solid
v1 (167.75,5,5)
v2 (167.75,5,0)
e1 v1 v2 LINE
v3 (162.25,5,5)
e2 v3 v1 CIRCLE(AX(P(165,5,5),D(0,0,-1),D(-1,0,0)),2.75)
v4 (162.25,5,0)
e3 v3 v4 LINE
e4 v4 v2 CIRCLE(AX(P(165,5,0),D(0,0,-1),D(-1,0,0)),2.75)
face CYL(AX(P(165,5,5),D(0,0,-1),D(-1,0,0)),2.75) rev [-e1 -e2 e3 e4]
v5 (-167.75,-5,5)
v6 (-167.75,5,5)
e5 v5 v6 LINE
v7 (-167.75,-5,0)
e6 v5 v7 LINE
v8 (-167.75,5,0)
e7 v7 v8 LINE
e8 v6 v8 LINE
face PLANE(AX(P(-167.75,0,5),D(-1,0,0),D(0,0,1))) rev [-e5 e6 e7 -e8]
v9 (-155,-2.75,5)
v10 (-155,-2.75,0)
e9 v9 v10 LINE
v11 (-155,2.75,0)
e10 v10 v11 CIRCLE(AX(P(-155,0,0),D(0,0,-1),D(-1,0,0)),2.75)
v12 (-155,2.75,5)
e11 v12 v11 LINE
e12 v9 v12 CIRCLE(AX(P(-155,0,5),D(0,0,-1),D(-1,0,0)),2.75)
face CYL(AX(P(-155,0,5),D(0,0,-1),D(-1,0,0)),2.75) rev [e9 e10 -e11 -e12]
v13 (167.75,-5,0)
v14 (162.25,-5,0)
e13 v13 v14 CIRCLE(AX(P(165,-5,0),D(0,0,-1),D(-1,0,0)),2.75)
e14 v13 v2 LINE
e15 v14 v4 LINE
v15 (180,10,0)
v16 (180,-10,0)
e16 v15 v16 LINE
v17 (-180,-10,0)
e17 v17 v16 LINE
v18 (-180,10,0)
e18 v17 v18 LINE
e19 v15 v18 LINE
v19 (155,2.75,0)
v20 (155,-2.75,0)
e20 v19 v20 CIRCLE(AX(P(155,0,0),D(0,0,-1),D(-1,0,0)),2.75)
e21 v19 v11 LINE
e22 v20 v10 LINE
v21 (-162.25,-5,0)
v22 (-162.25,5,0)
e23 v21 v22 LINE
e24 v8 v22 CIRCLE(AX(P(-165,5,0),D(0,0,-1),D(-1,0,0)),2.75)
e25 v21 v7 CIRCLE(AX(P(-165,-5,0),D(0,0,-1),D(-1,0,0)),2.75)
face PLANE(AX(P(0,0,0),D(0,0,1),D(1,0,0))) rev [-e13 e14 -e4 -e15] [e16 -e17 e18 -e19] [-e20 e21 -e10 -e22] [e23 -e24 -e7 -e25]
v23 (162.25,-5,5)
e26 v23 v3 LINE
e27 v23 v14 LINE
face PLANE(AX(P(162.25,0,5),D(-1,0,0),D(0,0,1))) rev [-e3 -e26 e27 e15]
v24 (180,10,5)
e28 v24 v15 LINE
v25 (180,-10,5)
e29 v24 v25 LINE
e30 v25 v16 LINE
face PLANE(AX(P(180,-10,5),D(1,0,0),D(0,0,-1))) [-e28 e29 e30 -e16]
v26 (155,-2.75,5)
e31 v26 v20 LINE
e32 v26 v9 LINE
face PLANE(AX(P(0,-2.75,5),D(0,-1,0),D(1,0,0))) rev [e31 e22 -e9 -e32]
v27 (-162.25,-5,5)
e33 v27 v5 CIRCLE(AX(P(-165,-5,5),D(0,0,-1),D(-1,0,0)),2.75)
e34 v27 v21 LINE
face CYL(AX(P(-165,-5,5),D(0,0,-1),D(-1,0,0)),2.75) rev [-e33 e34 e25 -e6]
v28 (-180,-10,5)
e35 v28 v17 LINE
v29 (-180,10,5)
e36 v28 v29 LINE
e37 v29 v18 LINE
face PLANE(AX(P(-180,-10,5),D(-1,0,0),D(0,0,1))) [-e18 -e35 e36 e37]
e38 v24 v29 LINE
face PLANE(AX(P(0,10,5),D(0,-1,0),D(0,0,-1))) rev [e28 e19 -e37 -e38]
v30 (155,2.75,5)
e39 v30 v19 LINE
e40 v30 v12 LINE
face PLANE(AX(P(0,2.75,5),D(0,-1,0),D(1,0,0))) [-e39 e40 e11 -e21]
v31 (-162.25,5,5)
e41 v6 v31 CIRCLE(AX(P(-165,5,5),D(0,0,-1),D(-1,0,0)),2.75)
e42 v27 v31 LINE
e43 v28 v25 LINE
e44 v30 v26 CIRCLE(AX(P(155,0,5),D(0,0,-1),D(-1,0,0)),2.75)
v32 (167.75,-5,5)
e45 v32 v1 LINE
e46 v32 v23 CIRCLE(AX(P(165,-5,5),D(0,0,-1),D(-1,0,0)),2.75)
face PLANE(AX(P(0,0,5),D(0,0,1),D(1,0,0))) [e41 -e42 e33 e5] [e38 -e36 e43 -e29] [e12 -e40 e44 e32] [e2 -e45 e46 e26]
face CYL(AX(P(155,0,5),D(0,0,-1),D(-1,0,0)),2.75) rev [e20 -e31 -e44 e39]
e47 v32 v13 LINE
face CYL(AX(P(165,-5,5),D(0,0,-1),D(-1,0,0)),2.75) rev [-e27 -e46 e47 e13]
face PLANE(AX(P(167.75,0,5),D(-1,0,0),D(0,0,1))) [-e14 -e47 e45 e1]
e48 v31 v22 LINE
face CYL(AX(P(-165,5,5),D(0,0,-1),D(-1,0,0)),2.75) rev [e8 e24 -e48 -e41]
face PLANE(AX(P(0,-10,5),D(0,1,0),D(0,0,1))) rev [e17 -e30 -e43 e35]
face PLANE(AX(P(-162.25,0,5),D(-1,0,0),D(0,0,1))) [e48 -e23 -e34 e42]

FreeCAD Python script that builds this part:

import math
import FreeCAD as App
import Part
import Sketcher
from FreeCAD import Vector
Q = App.Units.Quantity


def add_polygon(sketch, points):
    """Adds a closed chain of lines whose ends are joined by coincident constraints."""
    first, n = sketch.GeometryCount, len(points)
    for a, b in zip(points, points[1:] + points[:1]):
        sketch.addGeometry(Part.LineSegment(App.Vector(*a, 0), App.Vector(*b, 0)), False)
    for i in range(n):
        sketch.addConstraint(Sketcher.Constraint("Coincident", first + i, 2, first + (i + 1) % n, 1))

doc = App.newDocument("Part")
params = doc.addObject("Spreadsheet::Sheet", "Params")
for row, (alias, value) in enumerate([
    ("sketch1_width", "350 mm"),
    ("sketch1_height", "20 mm"),
    ("pad1_length", "5 mm"),
    ("sketch2_width", "310 mm"),
    ("sketch2_height", "10 mm"),
    ("sketch2_radius", "2.75 mm"),
    ("pocket1_length", "5 mm"),
    ("sketch3_width", "5 mm"),
    ("sketch3_height", "20 mm"),
    ("pad2_length", "5 mm"),
], start=1):
    params.set(f"A{row}", alias)
    params.set(f"B{row}", "=" + value)
    params.setAlias(f"B{row}", alias)

body = doc.addObject("PartDesign::Body", "Body")

sketch1 = doc.addObject("Sketcher::SketchObject", "Sketch")
body.addObject(sketch1)
sketch1.AttachmentSupport = (doc.XY_Plane, [""])
sketch1.MapMode = "FlatFace"
add_polygon(sketch1, [(175, 10), (-175, 10), (-175, -10), (175, -10)])
sketch1.addConstraint(Sketcher.Constraint("Horizontal", 0))
sketch1.addConstraint(Sketcher.Constraint("Vertical", 1))
sketch1.addConstraint(Sketcher.Constraint("Horizontal", 2))
sketch1.addConstraint(Sketcher.Constraint("Vertical", 3))
sketch1.addConstraint(Sketcher.Constraint("Symmetric", 0, 2, 2, 2, -1, 1))
sketch1.addConstraint(Sketcher.Constraint("DistanceX", 0, 2, 0, 1, Q("350 mm")))
sketch1.addConstraint(Sketcher.Constraint("DistanceY", 1, 2, 1, 1, Q("20 mm")))
sketch1.setExpression("Constraints[9]", "Params.sketch1_width")
sketch1.setExpression("Constraints[10]", "Params.sketch1_height")
pad1 = doc.addObject("PartDesign::Pad", "Pad")
body.addObject(pad1)
pad1.Profile = sketch1
pad1.setExpression("Length", "Params.pad1_length")

sketch2 = doc.addObject("Sketcher::SketchObject", "Sketch001")
body.addObject(sketch2)
sketch2.AttachmentSupport = (doc.XY_Plane, [""])
sketch2.MapMode = "FlatFace"
sketch2.addGeometry(Part.ArcOfCircle(Part.Circle(Vector(165, 5, 0), Vector(0, 0, 1), 2.8), math.radians(90), math.radians(180)), False)
sketch2.addGeometry(Part.ArcOfCircle(Part.Circle(Vector(165, 5, 0), Vector(0, 0, 1), 2.8), math.radians(0), math.radians(90)), False)
sketch2.addGeometry(Part.LineSegment(Vector(167.8, 5, 0), Vector(167.8, -5, 0)), False)
sketch2.addGeometry(Part.ArcOfCircle(Part.Circle(Vector(165, -5, 0), Vector(0, 0, 1), 2.8), math.radians(-90), math.radians(0)), False)
sketch2.addGeometry(Part.ArcOfCircle(Part.Circle(Vector(165, -5, 0), Vector(0, 0, 1), 2.8), math.radians(-180), math.radians(-90)), False)
sketch2.addGeometry(Part.LineSegment(Vector(162.2, -5, 0), Vector(162.2, 5, 0)), False)
sketch2.addGeometry(Part.ArcOfCircle(Part.Circle(Vector(155, 0, 0), Vector(0, 0, 1), 2.8), math.radians(-90), math.radians(0)), False)
sketch2.addGeometry(Part.LineSegment(Vector(155, -2.8, 0), Vector(-155, -2.8, 0)), False)
sketch2.addGeometry(Part.ArcOfCircle(Part.Circle(Vector(-155, 0, 0), Vector(0, 0, 1), 2.8), math.radians(-180), math.radians(-90)), False)
sketch2.addGeometry(Part.ArcOfCircle(Part.Circle(Vector(-155, 0, 0), Vector(0, 0, 1), 2.8), math.radians(90), math.radians(180)), False)
sketch2.addGeometry(Part.LineSegment(Vector(-155, 2.8, 0), Vector(155, 2.8, 0)), False)
sketch2.addGeometry(Part.ArcOfCircle(Part.Circle(Vector(155, 0, 0), Vector(0, 0, 1), 2.8), math.radians(0), math.radians(90)), False)
sketch2.addGeometry(Part.ArcOfCircle(Part.Circle(Vector(-165, 5, 0), Vector(0, 0, 1), 2.8), math.radians(90), math.radians(180)), False)
sketch2.addGeometry(Part.ArcOfCircle(Part.Circle(Vector(-165, 5, 0), Vector(0, 0, 1), 2.8), math.radians(0), math.radians(90)), False)
sketch2.addGeometry(Part.LineSegment(Vector(-162.2, 5, 0), Vector(-162.2, -5, 0)), False)
sketch2.addGeometry(Part.ArcOfCircle(Part.Circle(Vector(-165, -5, 0), Vector(0, 0, 1), 2.8), math.radians(-90), math.radians(0)), False)
sketch2.addGeometry(Part.ArcOfCircle(Part.Circle(Vector(-165, -5, 0), Vector(0, 0, 1), 2.8), math.radians(-180), math.radians(-90)), False)
sketch2.addGeometry(Part.LineSegment(Vector(-167.8, -5, 0), Vector(-167.8, 5, 0)), False)
sketch2.addConstraint(Sketcher.Constraint("Tangent", 0, 1, 1, 2))
sketch2.addConstraint(Sketcher.Constraint("Tangent", 1, 1, 2, 1))
sketch2.addConstraint(Sketcher.Constraint("Tangent", 2, 2, 3, 2))
sketch2.addConstraint(Sketcher.Constraint("Tangent", 3, 1, 4, 2))
sketch2.addConstraint(Sketcher.Constraint("Tangent", 4, 1, 5, 1))
sketch2.addConstraint(Sketcher.Constraint("Tangent", 5, 2, 0, 2))
sketch2.addConstraint(Sketcher.Constraint("Tangent", 6, 1, 7, 1))
sketch2.addConstraint(Sketcher.Constraint("Tangent", 7, 2, 8, 2))
sketch2.addConstraint(Sketcher.Constraint("Tangent", 8, 1, 9, 2))
sketch2.addConstraint(Sketcher.Constraint("Tangent", 9, 1, 10, 1))
sketch2.addConstraint(Sketcher.Constraint("Tangent", 10, 2, 11, 2))
sketch2.addConstraint(Sketcher.Constraint("Tangent", 11, 1, 6, 2))
sketch2.addConstraint(Sketcher.Constraint("Tangent", 12, 1, 13, 2))
sketch2.addConstraint(Sketcher.Constraint("Tangent", 13, 1, 14, 1))
sketch2.addConstraint(Sketcher.Constraint("Tangent", 14, 2, 15, 2))
sketch2.addConstraint(Sketcher.Constraint("Tangent", 15, 1, 16, 2))
sketch2.addConstraint(Sketcher.Constraint("Tangent", 16, 1, 17, 1))
sketch2.addConstraint(Sketcher.Constraint("Tangent", 17, 2, 12, 2))
sketch2.addConstraint(Sketcher.Constraint("Vertical", 2))
sketch2.addConstraint(Sketcher.Constraint("Vertical", 5))
sketch2.addConstraint(Sketcher.Constraint("Horizontal", 7))
sketch2.addConstraint(Sketcher.Constraint("Horizontal", 10))
sketch2.addConstraint(Sketcher.Constraint("Vertical", 14))
sketch2.addConstraint(Sketcher.Constraint("Vertical", 17))
sketch2.addConstraint(Sketcher.Constraint("Equal", 0, 1))
sketch2.addConstraint(Sketcher.Constraint("Equal", 1, 3))
sketch2.addConstraint(Sketcher.Constraint("Equal", 4, 6))
sketch2.addConstraint(Sketcher.Constraint("Equal", 6, 8))
sketch2.addConstraint(Sketcher.Constraint("Equal", 8, 9))
sketch2.addConstraint(Sketcher.Constraint("Equal", 11, 12))
sketch2.addConstraint(Sketcher.Constraint("Equal", 12, 13))
sketch2.addConstraint(Sketcher.Constraint("Equal", 13, 15))
sketch2.addConstraint(Sketcher.Constraint("Symmetric", 6, 3, 8, 3, -1, 1))
sketch2.addConstraint(Sketcher.Constraint("Symmetric", 3, 3, 12, 3, -1, 1))
sketch2.addConstraint(Sketcher.Constraint("Symmetric", 0, 1, 15, 1, -1, 1))
sketch2.addConstraint(Sketcher.Constraint("Symmetric", 0, 1, 12, 1, -2))
sketch2.addConstraint(Sketcher.Constraint("PointOnObject", 8, 1, -1))
sketch2.addConstraint(Sketcher.Constraint("PointOnObject", 11, 1, -1))
sketch2.addConstraint(Sketcher.Constraint("Vertical", 4, 3, 0, 1))
sketch2.addConstraint(Sketcher.Constraint("Vertical", 0, 1, 3, 1))
sketch2.addConstraint(Sketcher.Constraint("DistanceX", 7, 2, 7, 1, Q("310 mm")))
sketch2.addConstraint(Sketcher.Constraint("DistanceY", 2, 2, 2, 1, Q("10 mm")))
sketch2.addConstraint(Sketcher.Constraint("Radius", 0, Q("2.75 mm")))
sketch2.addConstraint(Sketcher.Constraint("DistanceX", -1, 1, 0, 3, Q("165 mm")))
sketch2.setExpression("Constraints[40]", "Params.sketch2_width")
sketch2.setExpression("Constraints[41]", "Params.sketch2_height")
sketch2.setExpression("Constraints[42]", "Params.sketch2_radius")
pocket1 = doc.addObject("PartDesign::Pocket", "Pocket")
body.addObject(pocket1)
pocket1.Profile = sketch2
pocket1.setExpression("Length", "Params.pocket1_length")
pocket1.Reversed = True

sketch3 = doc.addObject("Sketcher::SketchObject", "Sketch002")
body.addObject(sketch3)
sketch3.AttachmentSupport = (doc.XY_Plane, [""])
sketch3.MapMode = "FlatFace"
add_polygon(sketch3, [(180, 10), (180, -10), (175, -10), (175, 10)])
add_polygon(sketch3, [(-175, 10), (-175, -10), (-180, -10), (-180, 10)])
sketch3.addConstraint(Sketcher.Constraint("Vertical", 0))
sketch3.addConstraint(Sketcher.Constraint("Horizontal", 1))
sketch3.addConstraint(Sketcher.Constraint("Vertical", 2))
sketch3.addConstraint(Sketcher.Constraint("Horizontal", 3))
sketch3.addConstraint(Sketcher.Constraint("Vertical", 4))
sketch3.addConstraint(Sketcher.Constraint("Horizontal", 5))
sketch3.addConstraint(Sketcher.Constraint("Vertical", 6))
sketch3.addConstraint(Sketcher.Constraint("Horizontal", 7))
sketch3.addConstraint(Sketcher.Constraint("Symmetric", 2, 2, 4, 2, -1, 1))
sketch3.addConstraint(Sketcher.Constraint("Symmetric", 0, 2, 6, 2, -1, 1))
sketch3.addConstraint(Sketcher.Constraint("Horizontal", 1, 2, 4, 2))
sketch3.addConstraint(Sketcher.Constraint("DistanceX", 1, 2, 1, 1, Q("5 mm")))
sketch3.addConstraint(Sketcher.Constraint("DistanceY", 0, 2, 0, 1, Q("20 mm")))
sketch3.addConstraint(Sketcher.Constraint("DistanceX", -1, 1, 0, 2, Q("180 mm")))
sketch3.setExpression("Constraints[19]", "Params.sketch3_width")
sketch3.setExpression("Constraints[20]", "Params.sketch3_height")
pad2 = doc.addObject("PartDesign::Pad", "Pad001")
body.addObject(pad2)
pad2.Profile = sketch3
pad2.setExpression("Length", "Params.pad2_length")

doc.recompute()
